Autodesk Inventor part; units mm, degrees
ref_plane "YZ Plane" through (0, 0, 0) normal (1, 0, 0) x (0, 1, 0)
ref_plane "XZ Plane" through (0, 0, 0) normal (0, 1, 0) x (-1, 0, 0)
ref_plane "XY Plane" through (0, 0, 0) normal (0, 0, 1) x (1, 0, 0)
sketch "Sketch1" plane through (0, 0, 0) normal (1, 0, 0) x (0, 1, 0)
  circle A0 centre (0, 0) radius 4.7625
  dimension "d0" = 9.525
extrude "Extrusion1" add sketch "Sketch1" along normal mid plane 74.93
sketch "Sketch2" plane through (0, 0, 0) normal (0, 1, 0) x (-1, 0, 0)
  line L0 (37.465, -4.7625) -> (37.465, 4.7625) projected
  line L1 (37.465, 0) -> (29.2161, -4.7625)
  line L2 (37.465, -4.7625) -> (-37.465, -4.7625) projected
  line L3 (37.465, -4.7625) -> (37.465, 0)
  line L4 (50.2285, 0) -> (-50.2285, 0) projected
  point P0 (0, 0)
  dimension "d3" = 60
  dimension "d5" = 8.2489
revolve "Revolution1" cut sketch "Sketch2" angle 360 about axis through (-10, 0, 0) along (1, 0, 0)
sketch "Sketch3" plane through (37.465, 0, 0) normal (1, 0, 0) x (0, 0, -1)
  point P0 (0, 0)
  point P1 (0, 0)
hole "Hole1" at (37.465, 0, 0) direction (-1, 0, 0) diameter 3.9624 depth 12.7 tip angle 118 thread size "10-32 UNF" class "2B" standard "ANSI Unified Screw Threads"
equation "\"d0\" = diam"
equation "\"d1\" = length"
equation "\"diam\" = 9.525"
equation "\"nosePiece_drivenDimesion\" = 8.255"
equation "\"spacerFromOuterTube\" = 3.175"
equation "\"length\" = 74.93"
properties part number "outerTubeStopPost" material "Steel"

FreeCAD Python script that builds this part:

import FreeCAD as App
import Part
import Sketcher

V = App.Vector
Q = App.Units.Quantity

doc = App.newDocument("Part")
params = doc.addObject("Spreadsheet::Sheet", "Params")
for row, (alias, value) in enumerate([
    ("sketch1_diameter", "0.375 in"),
    ("pad1_length", "2.95 in"),
    ("groove_angle", "360 deg"),
    ("sketch3_diameter", "0.156 in"),
    ("hole_diameter", "0.156 in"),
    ("hole_depth", "0.5 in"),
], start=1):
    params.set(f"A{row}", alias)
    params.set(f"B{row}", "=" + value)
    params.setAlias(f"B{row}", alias)

body = doc.addObject("PartDesign::Body", "Body")

sketch1 = body.newObject("Sketcher::SketchObject", "Sketch")
sketch1.AttachmentSupport = (doc.getObject("YZ_Plane"), [""])
sketch1.MapMode = "FlatFace"
sketch1.addGeometry(Part.Circle(V(0, 0, 0), V(0, 0, 1), 4.8), False)
sketch1.addConstraint(Sketcher.Constraint("Coincident", 0, 3, -1, 1))
sketch1.addConstraint(Sketcher.Constraint("Diameter", 0, Q("0.375 in")))
sketch1.setExpression("Constraints[1]", "Params.sketch1_diameter")
pad1 = body.newObject("PartDesign::Pad", "Pad")
pad1.Profile = sketch1
pad1.setExpression("Length", "Params.pad1_length")
pad1.Midplane = True

sketch2 = body.newObject("Sketcher::SketchObject", "Sketch001")
sketch2.AttachmentSupport = (doc.getObject("XZ_Plane"), [""])
sketch2.MapMode = "FlatFace"
sketch2.addGeometry(Part.LineSegment(V(-29.2, -4.8, 0), V(-37.5, -4.8, 0)), False)
sketch2.addGeometry(Part.LineSegment(V(-37.5, -4.8, 0), V(-37.5, 0, 0)), False)
sketch2.addGeometry(Part.LineSegment(V(-37.5, 0, 0), V(-29.2, -4.8, 0)), False)
sketch2.addConstraint(Sketcher.Constraint("Coincident", 0, 2, 1, 1))
sketch2.addConstraint(Sketcher.Constraint("Coincident", 1, 2, 2, 1))
sketch2.addConstraint(Sketcher.Constraint("Coincident", 2, 2, 0, 1))
sketch2.addConstraint(Sketcher.Constraint("Horizontal", 0))
sketch2.addConstraint(Sketcher.Constraint("Vertical", 1))
sketch2.addConstraint(Sketcher.Constraint("PointOnObject", 1, 2, -1))
sketch2.addConstraint(Sketcher.Constraint("Angle", 2, Q("-30 deg")))
sketch2.addConstraint(Sketcher.Constraint("DistanceX", 0, 2, 0, 1, 8.249))
sketch2.addConstraint(Sketcher.Constraint("DistanceX", 0, 2, -1, 1, Q("1.475 in")))
groove = body.newObject("PartDesign::Groove", "Groove")
groove.Profile = sketch2
groove.ReferenceAxis = (sketch2, ["H_Axis"])
groove.setExpression("Angle", "Params.groove_angle")

sketch3 = body.newObject("Sketcher::SketchObject", "Sketch002")
sketch3.AttachmentSupport = (doc.getObject("YZ_Plane"), [""])
sketch3.MapMode = "FlatFace"
sketch3.AttachmentOffset = App.Placement(V(0, 0, 1.475 * 25.4), App.Rotation())
sketch3.addGeometry(Part.Circle(V(0, 0, 0), V(0, 0, 1), 2), False)
sketch3.addConstraint(Sketcher.Constraint("Coincident", 0, 3, -1, 1))
sketch3.addConstraint(Sketcher.Constraint("Diameter", 0, Q("0.156 in")))
sketch3.setExpression("Constraints[1]", "Params.sketch3_diameter")
doc.recompute()
hole = body.newObject("PartDesign::Hole", "Hole")
hole.Profile = sketch3
hole.ThreadType = "None"
hole.setExpression("Diameter", "Params.hole_diameter")
hole.DepthType = "Dimension"
hole.setExpression("Depth", "Params.hole_depth")
hole.DrillPoint = "Angled"
hole.DrillPointAngle = 118

doc.recompute()
